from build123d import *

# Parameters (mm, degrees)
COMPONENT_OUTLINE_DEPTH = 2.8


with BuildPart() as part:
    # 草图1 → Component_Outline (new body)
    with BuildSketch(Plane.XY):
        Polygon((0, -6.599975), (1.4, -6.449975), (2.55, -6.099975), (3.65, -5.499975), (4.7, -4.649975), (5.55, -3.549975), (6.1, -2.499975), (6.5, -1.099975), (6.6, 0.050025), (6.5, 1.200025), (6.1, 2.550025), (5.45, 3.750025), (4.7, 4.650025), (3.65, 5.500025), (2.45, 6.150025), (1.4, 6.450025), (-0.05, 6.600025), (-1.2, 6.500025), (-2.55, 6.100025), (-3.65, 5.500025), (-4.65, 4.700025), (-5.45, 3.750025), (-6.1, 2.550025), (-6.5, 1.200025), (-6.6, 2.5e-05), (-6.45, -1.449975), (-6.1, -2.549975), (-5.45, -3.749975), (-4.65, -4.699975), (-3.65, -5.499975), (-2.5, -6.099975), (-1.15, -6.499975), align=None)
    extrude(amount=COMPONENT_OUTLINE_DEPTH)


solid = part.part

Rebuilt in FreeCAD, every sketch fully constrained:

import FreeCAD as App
import Part
import Sketcher
from FreeCAD import Vector

doc = App.newDocument("Part")
params = doc.addObject("Spreadsheet::Sheet", "Params")
for row, (alias, value) in enumerate([
    ("pad1_length", "2.8 mm"),
], start=1):
    params.set(f"A{row}", alias)
    params.set(f"B{row}", "=" + value)
    params.setAlias(f"B{row}", alias)

body = doc.addObject("PartDesign::Body", "Body")

# Sketch on XY plane
sketch1 = body.newObject("Sketcher::SketchObject", "Sketch")
sketch1.AttachmentSupport = (doc.getObject("XY_Plane"), [""])
sketch1.MapMode = "FlatFace"
sketch1.addGeometry([
    Part.LineSegment(Vector(0, -6.599975, 0), Vector(1.4, -6.449975, 0)),  # 0
    Part.LineSegment(Vector(1.4, -6.449975, 0), Vector(2.55, -6.099975, 0)),  # 1
    Part.LineSegment(Vector(2.55, -6.099975, 0), Vector(3.65, -5.499975, 0)),  # 2
    Part.LineSegment(Vector(3.65, -5.499975, 0), Vector(4.7, -4.649975, 0)),  # 3
    Part.LineSegment(Vector(4.7, -4.649975, 0), Vector(5.55, -3.549975, 0)),  # 4
    Part.LineSegment(Vector(5.55, -3.549975, 0), Vector(6.1, -2.499975, 0)),  # 5
    Part.LineSegment(Vector(6.1, -2.499975, 0), Vector(6.5, -1.099975, 0)),  # 6
    Part.LineSegment(Vector(6.5, -1.099975, 0), Vector(6.6, 0.050025, 0)),  # 7
    Part.LineSegment(Vector(6.6, 0.050025, 0), Vector(6.5, 1.200025, 0)),  # 8
    Part.LineSegment(Vector(6.5, 1.200025, 0), Vector(6.1, 2.550025, 0)),  # 9
    Part.LineSegment(Vector(6.1, 2.550025, 0), Vector(5.45, 3.750025, 0)),  # 10
    Part.LineSegment(Vector(5.45, 3.750025, 0), Vector(4.7, 4.650025, 0)),  # 11
    Part.LineSegment(Vector(4.7, 4.650025, 0), Vector(3.65, 5.500025, 0)),  # 12
    Part.LineSegment(Vector(3.65, 5.500025, 0), Vector(2.45, 6.150025, 0)),  # 13
    Part.LineSegment(Vector(2.45, 6.150025, 0), Vector(1.4, 6.450025, 0)),  # 14
    Part.LineSegment(Vector(1.4, 6.450025, 0), Vector(-0.05, 6.600025, 0)),  # 15
    Part.LineSegment(Vector(-0.05, 6.600025, 0), Vector(-1.2, 6.500025, 0)),  # 16
    Part.LineSegment(Vector(-1.2, 6.500025, 0), Vector(-2.55, 6.100025, 0)),  # 17
    Part.LineSegment(Vector(-2.55, 6.100025, 0), Vector(-3.65, 5.500025, 0)),  # 18
    Part.LineSegment(Vector(-3.65, 5.500025, 0), Vector(-4.65, 4.700025, 0)),  # 19
    Part.LineSegment(Vector(-4.65, 4.700025, 0), Vector(-5.45, 3.750025, 0)),  # 20
    Part.LineSegment(Vector(-5.45, 3.750025, 0), Vector(-6.1, 2.550025, 0)),  # 21
    Part.LineSegment(Vector(-6.1, 2.550025, 0), Vector(-6.5, 1.200025, 0)),  # 22
    Part.LineSegment(Vector(-6.5, 1.200025, 0), Vector(-6.6, 0.000025, 0)),  # 23
    Part.LineSegment(Vector(-6.6, 0.000025, 0), Vector(-6.45, -1.449975, 0)),  # 24
    Part.LineSegment(Vector(-6.45, -1.449975, 0), Vector(-6.1, -2.549975, 0)),  # 25
    Part.LineSegment(Vector(-6.1, -2.549975, 0), Vector(-5.45, -3.749975, 0)),  # 26
    Part.LineSegment(Vector(-5.45, -3.749975, 0), Vector(-4.65, -4.699975, 0)),  # 27
    Part.LineSegment(Vector(-4.65, -4.699975, 0), Vector(-3.65, -5.499975, 0)),  # 28
    Part.LineSegment(Vector(-3.65, -5.499975, 0), Vector(-2.5, -6.099975, 0)),  # 29
    Part.LineSegment(Vector(-2.5, -6.099975, 0), Vector(-1.15, -6.499975, 0)),  # 30
    Part.LineSegment(Vector(-1.15, -6.499975, 0), Vector(0, -6.599975, 0)),  # 31
], False)
sketch1.addConstraint([
    Sketcher.Constraint("Coincident", 0, 2, 1, 1),
    Sketcher.Constraint("Coincident", 1, 2, 2, 1),
    Sketcher.Constraint("Coincident", 2, 2, 3, 1),
    Sketcher.Constraint("Coincident", 3, 2, 4, 1),
    Sketcher.Constraint("Coincident", 4, 2, 5, 1),
    Sketcher.Constraint("Coincident", 5, 2, 6, 1),
    Sketcher.Constraint("Coincident", 6, 2, 7, 1),
    Sketcher.Constraint("Coincident", 7, 2, 8, 1),
    Sketcher.Constraint("Coincident", 8, 2, 9, 1),
    Sketcher.Constraint("Coincident", 9, 2, 10, 1),
    Sketcher.Constraint("Coincident", 10, 2, 11, 1),
    Sketcher.Constraint("Coincident", 11, 2, 12, 1),
    Sketcher.Constraint("Coincident", 12, 2, 13, 1),
    Sketcher.Constraint("Coincident", 13, 2, 14, 1),
    Sketcher.Constraint("Coincident", 14, 2, 15, 1),
    Sketcher.Constraint("Coincident", 15, 2, 16, 1),
    Sketcher.Constraint("Coincident", 16, 2, 17, 1),
    Sketcher.Constraint("Coincident", 17, 2, 18, 1),
    Sketcher.Constraint("Coincident", 18, 2, 19, 1),
    Sketcher.Constraint("Coincident", 19, 2, 20, 1),
    Sketcher.Constraint("Coincident", 20, 2, 21, 1),
    Sketcher.Constraint("Coincident", 21, 2, 22, 1),
    Sketcher.Constraint("Coincident", 22, 2, 23, 1),
    Sketcher.Constraint("Coincident", 23, 2, 24, 1),
    Sketcher.Constraint("Coincident", 24, 2, 25, 1),
    Sketcher.Constraint("Coincident", 25, 2, 26, 1),
    Sketcher.Constraint("Coincident", 26, 2, 27, 1),
    Sketcher.Constraint("Coincident", 27, 2, 28, 1),
    Sketcher.Constraint("Coincident", 28, 2, 29, 1),
    Sketcher.Constraint("Coincident", 29, 2, 30, 1),
    Sketcher.Constraint("Coincident", 30, 2, 31, 1),
    Sketcher.Constraint("Coincident", 31, 2, 0, 1),
    Sketcher.Constraint("Symmetric", 12, 2, 18, 2, -2),
    Sketcher.Constraint("Symmetric", 10, 2, 20, 2, -2),
    Sketcher.Constraint("Symmetric", 9, 2, 21, 2, -2),
    Sketcher.Constraint("Symmetric", 8, 2, 22, 2, -2),
    Sketcher.Constraint("Symmetric", 2, 2, 28, 2, -2),
    Sketcher.Constraint("PointOnObject", 31, 2, -2),
    Sketcher.Constraint("Perpendicular", 6, 14),
    Sketcher.Constraint("Perpendicular", 8, 16),
    Sketcher.Constraint("Perpendicular", 9, 17),
    Sketcher.Constraint("Parallel", 2, 18),
    Sketcher.Constraint("Perpendicular", 13, 21),
    Sketcher.Constraint("Parallel", 10, 26),
    Sketcher.Constraint("Perpendicular", 22, 30),
    Sketcher.Constraint("Perpendicular", 7, 31),
    Sketcher.Constraint("Horizontal", 1, 2, 29, 2),
    Sketcher.Constraint("Vertical", 6, 2, 8, 2),
    Sketcher.Constraint("Vertical", 5, 2, 9, 2),
    Sketcher.Constraint("Vertical", 3, 2, 11, 2),
    Sketcher.Constraint("Vertical", 2, 2, 12, 2),
    Sketcher.Constraint("Vertical", 0, 2, 14, 2),
    Sketcher.Constraint("Vertical", 21, 2, 25, 2),
    Sketcher.Constraint("Vertical", 20, 2, 26, 2),
    Sketcher.Constraint("Vertical", 19, 2, 27, 2),
    Sketcher.Constraint("Equal", 7, 8),
    Sketcher.Constraint("Equal", 0, 9),
    Sketcher.Constraint("Equal", 3, 12),
    Sketcher.Constraint("Equal", 10, 13),
    Sketcher.Constraint("Equal", 8, 16),
    Sketcher.Constraint("Equal", 9, 17),
    Sketcher.Constraint("Equal", 2, 18),
    Sketcher.Constraint("Equal", 15, 24),
    Sketcher.Constraint("Equal", 16, 25),
    Sketcher.Constraint("Equal", 20, 27),
    Sketcher.Constraint("Equal", 19, 28),
    Sketcher.Constraint("Equal", 22, 30),
    Sketcher.Constraint("Equal", 25, 31),
    Sketcher.Constraint("DistanceX", 1, 2, 4, 2, 3.0),
    Sketcher.Constraint("DistanceY", 2, 2, 5, 2, 3.0),
    Sketcher.Constraint("DistanceY", 1, 2, 6, 2, 5.0),
    Sketcher.Constraint("DistanceX", 13, 2, 10, 2, 3.0),
    Sketcher.Constraint("DistanceY", 12, 2, 16, 2, 1.0),
    Sketcher.Constraint("DistanceX", 17, 2, 13, 2, 5.0),
    Sketcher.Constraint("DistanceX", 19, 2, 18, 2, 1.0),
    Sketcher.Constraint("DistanceY", 24, 2, 21, 2, 4.0),
    Sketcher.Constraint("DistanceX", 24, 2, 20, 2, 1.0),
    Sketcher.Constraint("DistanceX", -1, 1, 0, 2, 1.4),
    Sketcher.Constraint("DistanceX", -1, 1, 3, 2, 4.7),
    Sketcher.Constraint("DistanceX", -1, 1, 5, 2, 6.1),
    Sketcher.Constraint("DistanceX", -1, 1, 6, 2, 6.5),
    Sketcher.Constraint("DistanceX", -1, 1, 7, 2, 6.6),
    Sketcher.Constraint("DistanceX", 16, 2, -1, 1, 1.2),
    Sketcher.Constraint("DistanceX", 23, 2, -1, 1, 6.6),
    Sketcher.Constraint("DistanceX", 29, 2, -1, 1, 2.5),
    Sketcher.Constraint("DistanceX", 1, 2, 2, 2, 1.1),
    Sketcher.Constraint("DistanceY", 0, 2, 3, 2, 1.8),
    Sketcher.Constraint("DistanceY", 3, 2, 4, 2, 1.1),
    Sketcher.Constraint("DistanceY", 4, 2, 7, 2, 3.6),
    Sketcher.Constraint("DistanceY", 19, 2, 18, 2, 0.8),
    Sketcher.Constraint("DistanceY", 0, 2, -1, 1, 6.449975),
])
pad1 = body.newObject("PartDesign::Pad", "Pad")
pad1.Profile = sketch1
pad1.setExpression("Length", "Params.pad1_length")

doc.recompute()
